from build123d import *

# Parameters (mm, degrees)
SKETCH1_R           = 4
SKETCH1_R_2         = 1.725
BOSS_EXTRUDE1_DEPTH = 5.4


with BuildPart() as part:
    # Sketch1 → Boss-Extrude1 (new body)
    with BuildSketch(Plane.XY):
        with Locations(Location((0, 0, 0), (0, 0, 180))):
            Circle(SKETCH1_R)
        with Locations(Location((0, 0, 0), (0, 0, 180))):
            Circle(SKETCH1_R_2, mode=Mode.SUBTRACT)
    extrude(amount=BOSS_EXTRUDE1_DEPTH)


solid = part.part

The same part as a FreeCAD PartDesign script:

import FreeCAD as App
import Part
import Sketcher
from FreeCAD import Vector
Q = App.Units.Quantity

doc = App.newDocument("Part")
body = doc.addObject("PartDesign::Body", "Body")

sketch1 = body.newObject("Sketcher::SketchObject", "Sketch")
sketch1.AttachmentSupport = (doc.getObject("XY_Plane"), [""])
sketch1.MapMode = "FlatFace"
sketch1.addGeometry([
    Part.Circle(Vector(0, 0, 0), Vector(0, 0, 1), 4),
    Part.Circle(Vector(0, 0, 0), Vector(0, 0, 1), 1.7),
], False)
sketch1.addConstraint([
    Sketcher.Constraint("Coincident", 0, 3, -1, 1),
    Sketcher.Constraint("Coincident", 1, 3, -1, 1),
    Sketcher.Constraint("Diameter", 0, Q("8 mm")),
    Sketcher.Constraint("Diameter", 1, Q("3.45 mm")),
])
pad1 = body.newObject("PartDesign::Pad", "Pad")
pad1.Profile = sketch1
pad1.Length = 5.4

doc.recompute()
